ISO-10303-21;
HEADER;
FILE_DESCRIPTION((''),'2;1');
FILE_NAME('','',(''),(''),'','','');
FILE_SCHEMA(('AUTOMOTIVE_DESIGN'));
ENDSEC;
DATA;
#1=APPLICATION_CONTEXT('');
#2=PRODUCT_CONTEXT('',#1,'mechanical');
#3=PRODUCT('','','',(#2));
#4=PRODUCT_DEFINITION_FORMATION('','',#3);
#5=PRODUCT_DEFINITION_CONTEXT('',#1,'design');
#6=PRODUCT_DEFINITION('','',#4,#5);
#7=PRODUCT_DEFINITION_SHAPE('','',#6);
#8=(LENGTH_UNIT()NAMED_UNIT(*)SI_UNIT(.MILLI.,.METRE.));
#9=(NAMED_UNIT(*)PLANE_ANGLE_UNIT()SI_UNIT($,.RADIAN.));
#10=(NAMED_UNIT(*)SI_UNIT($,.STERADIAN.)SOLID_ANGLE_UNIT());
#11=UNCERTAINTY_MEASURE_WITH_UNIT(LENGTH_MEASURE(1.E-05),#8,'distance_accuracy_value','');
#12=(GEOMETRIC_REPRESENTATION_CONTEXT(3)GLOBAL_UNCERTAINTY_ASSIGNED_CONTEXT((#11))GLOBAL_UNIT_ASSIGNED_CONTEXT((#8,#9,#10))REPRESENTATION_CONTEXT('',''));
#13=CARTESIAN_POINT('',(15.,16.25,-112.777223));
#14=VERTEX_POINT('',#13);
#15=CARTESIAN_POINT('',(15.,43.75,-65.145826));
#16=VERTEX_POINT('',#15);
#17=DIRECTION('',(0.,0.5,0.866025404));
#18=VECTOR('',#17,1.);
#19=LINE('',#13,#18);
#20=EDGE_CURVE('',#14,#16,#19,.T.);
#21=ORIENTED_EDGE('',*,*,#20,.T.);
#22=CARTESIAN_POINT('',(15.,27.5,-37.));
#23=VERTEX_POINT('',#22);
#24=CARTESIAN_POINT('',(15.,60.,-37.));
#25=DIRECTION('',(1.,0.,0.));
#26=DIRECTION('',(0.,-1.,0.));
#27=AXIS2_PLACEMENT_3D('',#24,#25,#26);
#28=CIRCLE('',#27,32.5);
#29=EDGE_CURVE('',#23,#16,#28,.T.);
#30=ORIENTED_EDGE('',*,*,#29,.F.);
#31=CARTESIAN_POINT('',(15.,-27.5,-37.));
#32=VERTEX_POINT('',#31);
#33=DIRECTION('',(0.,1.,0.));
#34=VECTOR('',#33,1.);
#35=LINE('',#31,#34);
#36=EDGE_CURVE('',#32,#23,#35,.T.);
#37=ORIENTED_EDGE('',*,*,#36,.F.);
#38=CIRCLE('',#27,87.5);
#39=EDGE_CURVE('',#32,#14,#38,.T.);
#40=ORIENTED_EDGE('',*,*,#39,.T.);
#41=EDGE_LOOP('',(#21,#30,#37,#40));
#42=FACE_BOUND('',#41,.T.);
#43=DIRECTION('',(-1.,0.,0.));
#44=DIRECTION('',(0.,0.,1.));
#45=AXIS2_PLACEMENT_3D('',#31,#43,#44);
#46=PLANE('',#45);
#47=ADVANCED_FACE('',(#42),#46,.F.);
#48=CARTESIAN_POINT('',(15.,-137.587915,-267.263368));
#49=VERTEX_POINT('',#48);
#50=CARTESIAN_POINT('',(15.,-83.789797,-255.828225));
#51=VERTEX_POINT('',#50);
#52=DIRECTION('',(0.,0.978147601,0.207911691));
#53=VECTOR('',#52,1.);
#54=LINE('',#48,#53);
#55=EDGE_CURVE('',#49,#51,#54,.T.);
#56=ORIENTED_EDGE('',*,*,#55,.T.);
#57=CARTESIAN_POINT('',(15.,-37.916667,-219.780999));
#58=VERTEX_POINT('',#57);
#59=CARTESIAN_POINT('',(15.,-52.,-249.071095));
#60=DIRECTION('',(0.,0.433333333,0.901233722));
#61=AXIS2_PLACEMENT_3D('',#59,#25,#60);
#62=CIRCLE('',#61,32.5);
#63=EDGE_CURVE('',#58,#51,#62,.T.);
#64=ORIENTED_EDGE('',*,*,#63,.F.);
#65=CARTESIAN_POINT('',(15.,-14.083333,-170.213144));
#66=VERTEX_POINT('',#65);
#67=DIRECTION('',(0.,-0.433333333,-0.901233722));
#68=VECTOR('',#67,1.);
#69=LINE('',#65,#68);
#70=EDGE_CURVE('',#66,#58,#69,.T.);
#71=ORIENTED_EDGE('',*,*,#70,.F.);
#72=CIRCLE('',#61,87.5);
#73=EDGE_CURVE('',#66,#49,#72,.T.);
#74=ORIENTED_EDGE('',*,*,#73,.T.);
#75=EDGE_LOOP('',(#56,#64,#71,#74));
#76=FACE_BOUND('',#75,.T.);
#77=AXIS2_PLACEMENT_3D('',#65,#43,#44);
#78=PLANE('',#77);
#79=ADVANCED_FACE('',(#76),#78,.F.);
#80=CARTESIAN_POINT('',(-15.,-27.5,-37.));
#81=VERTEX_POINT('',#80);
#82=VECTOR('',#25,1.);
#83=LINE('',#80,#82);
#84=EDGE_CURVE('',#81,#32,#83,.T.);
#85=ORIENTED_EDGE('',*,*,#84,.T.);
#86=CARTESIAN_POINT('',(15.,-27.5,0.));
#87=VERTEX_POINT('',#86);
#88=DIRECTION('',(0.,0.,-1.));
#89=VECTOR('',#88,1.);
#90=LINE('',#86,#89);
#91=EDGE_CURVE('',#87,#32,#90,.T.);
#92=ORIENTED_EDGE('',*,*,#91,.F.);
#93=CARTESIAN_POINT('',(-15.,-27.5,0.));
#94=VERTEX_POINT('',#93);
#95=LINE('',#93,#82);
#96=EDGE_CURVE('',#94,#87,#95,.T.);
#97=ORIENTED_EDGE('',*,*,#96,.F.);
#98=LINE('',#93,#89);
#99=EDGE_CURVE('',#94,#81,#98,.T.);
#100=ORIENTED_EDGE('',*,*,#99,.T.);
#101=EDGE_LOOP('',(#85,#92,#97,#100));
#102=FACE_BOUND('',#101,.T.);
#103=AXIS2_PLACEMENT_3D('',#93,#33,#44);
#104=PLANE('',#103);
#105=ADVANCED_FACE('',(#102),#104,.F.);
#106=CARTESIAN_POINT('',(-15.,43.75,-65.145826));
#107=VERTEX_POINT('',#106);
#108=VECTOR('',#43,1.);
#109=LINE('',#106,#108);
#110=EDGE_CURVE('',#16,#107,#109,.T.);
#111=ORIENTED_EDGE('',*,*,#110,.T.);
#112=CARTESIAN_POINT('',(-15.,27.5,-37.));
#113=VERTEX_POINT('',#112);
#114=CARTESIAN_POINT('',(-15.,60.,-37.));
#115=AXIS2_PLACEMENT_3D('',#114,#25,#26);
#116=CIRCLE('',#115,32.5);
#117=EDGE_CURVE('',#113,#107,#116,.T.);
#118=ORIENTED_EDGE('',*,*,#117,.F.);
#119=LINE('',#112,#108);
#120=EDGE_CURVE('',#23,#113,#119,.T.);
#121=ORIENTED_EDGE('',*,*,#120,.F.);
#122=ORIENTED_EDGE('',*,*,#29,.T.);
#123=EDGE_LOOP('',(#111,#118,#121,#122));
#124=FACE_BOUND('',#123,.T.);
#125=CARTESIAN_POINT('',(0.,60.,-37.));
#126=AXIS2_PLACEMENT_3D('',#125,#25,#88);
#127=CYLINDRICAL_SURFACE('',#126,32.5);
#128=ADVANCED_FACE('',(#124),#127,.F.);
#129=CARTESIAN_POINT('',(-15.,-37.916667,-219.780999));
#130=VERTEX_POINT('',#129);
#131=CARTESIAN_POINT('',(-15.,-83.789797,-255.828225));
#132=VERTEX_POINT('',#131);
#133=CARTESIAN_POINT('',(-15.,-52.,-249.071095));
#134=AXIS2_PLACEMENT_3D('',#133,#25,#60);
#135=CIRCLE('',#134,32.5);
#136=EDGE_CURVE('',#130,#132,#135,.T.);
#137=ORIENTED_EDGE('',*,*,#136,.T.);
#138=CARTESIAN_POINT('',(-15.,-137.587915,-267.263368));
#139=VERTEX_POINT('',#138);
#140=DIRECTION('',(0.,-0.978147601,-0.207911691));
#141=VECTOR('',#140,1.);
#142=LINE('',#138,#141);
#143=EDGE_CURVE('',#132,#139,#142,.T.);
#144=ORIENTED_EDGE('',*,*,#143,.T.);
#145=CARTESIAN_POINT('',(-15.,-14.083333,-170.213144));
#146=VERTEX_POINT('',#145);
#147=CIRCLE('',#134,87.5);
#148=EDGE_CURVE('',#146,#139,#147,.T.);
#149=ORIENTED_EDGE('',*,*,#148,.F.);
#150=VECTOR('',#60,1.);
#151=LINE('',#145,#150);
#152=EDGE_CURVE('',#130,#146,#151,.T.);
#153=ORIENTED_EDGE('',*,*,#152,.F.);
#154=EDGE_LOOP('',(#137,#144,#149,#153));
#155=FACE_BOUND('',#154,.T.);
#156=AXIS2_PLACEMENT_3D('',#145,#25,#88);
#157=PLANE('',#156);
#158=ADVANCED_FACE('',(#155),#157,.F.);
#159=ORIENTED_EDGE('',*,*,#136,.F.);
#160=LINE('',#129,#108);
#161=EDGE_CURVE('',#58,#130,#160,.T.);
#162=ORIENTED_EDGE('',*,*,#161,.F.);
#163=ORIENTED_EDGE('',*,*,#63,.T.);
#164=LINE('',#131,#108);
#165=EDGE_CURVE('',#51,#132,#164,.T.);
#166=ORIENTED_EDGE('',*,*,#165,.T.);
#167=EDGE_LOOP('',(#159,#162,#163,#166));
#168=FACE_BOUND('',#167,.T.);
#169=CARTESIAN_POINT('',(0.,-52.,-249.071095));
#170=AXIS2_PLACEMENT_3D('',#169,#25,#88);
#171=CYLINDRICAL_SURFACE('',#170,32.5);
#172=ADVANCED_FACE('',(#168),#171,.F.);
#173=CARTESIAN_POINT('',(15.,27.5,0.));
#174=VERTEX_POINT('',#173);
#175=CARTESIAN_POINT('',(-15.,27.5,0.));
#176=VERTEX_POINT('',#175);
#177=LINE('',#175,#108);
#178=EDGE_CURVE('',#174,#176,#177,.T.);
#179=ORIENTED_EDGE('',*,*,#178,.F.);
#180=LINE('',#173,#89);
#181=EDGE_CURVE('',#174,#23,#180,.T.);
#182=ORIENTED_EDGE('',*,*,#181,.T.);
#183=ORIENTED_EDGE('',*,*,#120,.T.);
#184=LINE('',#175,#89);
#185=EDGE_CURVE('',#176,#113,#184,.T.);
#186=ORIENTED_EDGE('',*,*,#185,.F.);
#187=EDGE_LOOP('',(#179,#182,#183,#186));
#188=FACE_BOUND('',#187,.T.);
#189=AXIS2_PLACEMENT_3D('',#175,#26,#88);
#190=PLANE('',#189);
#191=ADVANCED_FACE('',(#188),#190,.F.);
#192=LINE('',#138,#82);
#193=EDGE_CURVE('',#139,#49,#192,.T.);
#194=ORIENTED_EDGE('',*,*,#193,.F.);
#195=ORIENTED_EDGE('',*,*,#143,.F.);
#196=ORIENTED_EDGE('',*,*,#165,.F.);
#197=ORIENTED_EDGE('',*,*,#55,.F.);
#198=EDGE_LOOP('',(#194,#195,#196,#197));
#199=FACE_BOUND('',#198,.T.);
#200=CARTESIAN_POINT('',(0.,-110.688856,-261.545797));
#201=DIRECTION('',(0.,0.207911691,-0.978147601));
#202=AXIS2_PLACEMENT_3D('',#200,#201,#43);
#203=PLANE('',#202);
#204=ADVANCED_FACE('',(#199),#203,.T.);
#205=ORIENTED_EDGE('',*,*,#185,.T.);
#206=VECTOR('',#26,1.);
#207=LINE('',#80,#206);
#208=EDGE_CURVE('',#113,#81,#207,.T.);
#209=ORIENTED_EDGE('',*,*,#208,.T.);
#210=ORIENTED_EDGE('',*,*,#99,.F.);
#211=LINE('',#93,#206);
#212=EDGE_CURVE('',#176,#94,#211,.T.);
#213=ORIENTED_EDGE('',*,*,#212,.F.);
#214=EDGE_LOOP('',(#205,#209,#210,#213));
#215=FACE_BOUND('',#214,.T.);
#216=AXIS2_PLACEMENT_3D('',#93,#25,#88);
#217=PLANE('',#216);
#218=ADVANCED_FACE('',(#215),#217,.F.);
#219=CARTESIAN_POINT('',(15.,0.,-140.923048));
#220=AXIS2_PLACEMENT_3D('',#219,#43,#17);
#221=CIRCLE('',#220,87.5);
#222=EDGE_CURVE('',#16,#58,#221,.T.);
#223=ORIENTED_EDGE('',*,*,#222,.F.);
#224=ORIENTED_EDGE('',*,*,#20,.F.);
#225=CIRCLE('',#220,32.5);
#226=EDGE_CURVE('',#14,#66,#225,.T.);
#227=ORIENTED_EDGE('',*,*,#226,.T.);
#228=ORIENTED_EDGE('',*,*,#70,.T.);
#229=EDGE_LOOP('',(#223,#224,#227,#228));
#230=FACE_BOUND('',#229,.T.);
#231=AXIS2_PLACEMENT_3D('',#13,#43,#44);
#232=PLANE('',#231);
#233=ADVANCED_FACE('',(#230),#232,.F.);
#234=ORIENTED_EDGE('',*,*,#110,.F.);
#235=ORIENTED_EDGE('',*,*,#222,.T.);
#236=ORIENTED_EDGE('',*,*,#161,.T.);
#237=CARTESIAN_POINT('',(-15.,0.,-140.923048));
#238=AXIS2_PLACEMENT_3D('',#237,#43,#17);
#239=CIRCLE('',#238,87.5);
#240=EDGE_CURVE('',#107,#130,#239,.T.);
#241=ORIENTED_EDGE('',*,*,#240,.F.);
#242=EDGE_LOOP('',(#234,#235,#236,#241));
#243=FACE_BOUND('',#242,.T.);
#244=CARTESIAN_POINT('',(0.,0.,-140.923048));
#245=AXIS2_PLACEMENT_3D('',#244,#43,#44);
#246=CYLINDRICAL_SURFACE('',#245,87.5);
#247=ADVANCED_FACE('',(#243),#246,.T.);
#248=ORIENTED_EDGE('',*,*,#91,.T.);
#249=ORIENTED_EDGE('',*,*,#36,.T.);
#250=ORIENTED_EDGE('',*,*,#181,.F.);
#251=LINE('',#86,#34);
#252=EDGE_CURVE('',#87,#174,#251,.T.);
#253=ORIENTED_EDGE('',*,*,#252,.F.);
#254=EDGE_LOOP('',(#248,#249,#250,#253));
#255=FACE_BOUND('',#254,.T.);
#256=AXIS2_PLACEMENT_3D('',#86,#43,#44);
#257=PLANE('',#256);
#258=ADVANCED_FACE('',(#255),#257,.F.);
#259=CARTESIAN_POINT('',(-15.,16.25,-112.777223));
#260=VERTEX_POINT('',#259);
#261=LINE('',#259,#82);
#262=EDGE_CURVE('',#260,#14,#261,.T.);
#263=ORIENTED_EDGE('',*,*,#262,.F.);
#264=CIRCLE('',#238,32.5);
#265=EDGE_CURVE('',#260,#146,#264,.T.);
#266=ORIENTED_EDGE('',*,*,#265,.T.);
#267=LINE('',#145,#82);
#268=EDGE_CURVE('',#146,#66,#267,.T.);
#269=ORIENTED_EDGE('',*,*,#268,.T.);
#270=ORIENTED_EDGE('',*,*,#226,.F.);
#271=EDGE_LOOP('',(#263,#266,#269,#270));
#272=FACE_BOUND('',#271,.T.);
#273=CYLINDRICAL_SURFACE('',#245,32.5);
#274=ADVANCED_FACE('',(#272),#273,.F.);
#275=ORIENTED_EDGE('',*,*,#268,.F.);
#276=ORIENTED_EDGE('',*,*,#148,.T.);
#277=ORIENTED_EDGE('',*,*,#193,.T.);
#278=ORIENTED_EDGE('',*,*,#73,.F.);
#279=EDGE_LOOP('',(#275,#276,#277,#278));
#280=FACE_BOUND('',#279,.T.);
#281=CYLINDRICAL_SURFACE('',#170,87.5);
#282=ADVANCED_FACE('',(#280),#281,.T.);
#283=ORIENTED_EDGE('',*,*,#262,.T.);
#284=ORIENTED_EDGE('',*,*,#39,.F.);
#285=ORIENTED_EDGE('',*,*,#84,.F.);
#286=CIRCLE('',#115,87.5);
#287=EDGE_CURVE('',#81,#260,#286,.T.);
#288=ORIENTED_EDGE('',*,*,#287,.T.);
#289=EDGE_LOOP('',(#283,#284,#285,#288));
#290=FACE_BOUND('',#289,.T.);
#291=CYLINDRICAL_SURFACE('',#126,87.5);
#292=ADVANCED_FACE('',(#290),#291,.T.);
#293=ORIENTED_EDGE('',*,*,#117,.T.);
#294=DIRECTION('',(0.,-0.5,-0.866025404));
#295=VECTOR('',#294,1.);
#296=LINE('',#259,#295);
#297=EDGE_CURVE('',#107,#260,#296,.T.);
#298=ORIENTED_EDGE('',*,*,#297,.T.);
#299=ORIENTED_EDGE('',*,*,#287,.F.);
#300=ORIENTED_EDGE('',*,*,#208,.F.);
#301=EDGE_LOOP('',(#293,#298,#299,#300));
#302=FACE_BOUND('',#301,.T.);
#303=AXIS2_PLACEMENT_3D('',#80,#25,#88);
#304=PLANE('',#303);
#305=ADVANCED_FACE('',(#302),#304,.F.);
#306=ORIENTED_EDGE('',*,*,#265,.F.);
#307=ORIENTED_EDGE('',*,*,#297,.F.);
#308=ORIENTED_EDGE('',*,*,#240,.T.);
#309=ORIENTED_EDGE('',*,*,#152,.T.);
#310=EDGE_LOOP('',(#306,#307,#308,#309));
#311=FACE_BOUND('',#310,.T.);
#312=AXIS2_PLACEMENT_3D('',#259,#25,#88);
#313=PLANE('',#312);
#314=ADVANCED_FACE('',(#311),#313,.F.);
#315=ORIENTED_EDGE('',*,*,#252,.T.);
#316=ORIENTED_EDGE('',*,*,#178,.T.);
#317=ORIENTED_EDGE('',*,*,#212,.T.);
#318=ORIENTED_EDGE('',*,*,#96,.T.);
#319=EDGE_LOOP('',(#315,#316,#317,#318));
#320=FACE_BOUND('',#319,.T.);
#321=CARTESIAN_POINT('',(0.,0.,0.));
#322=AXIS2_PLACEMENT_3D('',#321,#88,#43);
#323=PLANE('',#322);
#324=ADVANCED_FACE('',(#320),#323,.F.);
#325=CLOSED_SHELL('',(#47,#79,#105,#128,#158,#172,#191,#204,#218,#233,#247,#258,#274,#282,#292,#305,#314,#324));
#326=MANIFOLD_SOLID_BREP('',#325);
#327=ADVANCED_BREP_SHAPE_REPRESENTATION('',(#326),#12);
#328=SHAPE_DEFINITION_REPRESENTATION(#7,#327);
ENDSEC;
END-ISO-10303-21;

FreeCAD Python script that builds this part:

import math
import FreeCAD as App
import Part
import Sketcher
from FreeCAD import Vector
Q = App.Units.Quantity

doc = App.newDocument("Part")
body = doc.addObject("PartDesign::Body", "Body")

# Sketch on XY plane
sketch1 = body.newObject("Sketcher::SketchObject", "Sketch")
sketch1.AttachmentSupport = (doc.getObject("XY_Plane"), [""])
sketch1.MapMode = "FlatFace"
sketch1.addGeometry(Part.LineSegment(Vector(-15, 28, 0), Vector(-15, -28, 0)), False)
sketch1.addGeometry(Part.LineSegment(Vector(-15, -28, 0), Vector(15, -28, 0)), False)
sketch1.addGeometry(Part.LineSegment(Vector(15, -28, 0), Vector(15, 28, 0)), False)
sketch1.addGeometry(Part.LineSegment(Vector(15, 28, 0), Vector(-15, 28, 0)), False)
sketch1.addConstraint(Sketcher.Constraint("Coincident", 0, 2, 1, 1))
sketch1.addConstraint(Sketcher.Constraint("Coincident", 1, 2, 2, 1))
sketch1.addConstraint(Sketcher.Constraint("Coincident", 2, 2, 3, 1))
sketch1.addConstraint(Sketcher.Constraint("Coincident", 3, 2, 0, 1))
sketch1.addConstraint(Sketcher.Constraint("Vertical", 0))
sketch1.addConstraint(Sketcher.Constraint("Horizontal", 1))
sketch1.addConstraint(Sketcher.Constraint("Vertical", 2))
sketch1.addConstraint(Sketcher.Constraint("Horizontal", 3))
sketch1.addConstraint(Sketcher.Constraint("Symmetric", 0, 2, 2, 2, -1, 1))
sketch1.addConstraint(Sketcher.Constraint("DistanceX", 1, 1, 1, 2, Q("30 mm")))
sketch1.addConstraint(Sketcher.Constraint("DistanceY", 0, 2, 0, 1, Q("55 mm")))

# Sketch on YZ plane
sketch2 = body.newObject("Sketcher::SketchObject", "Sketch001")
sketch2.AttachmentSupport = (doc.getObject("YZ_Plane"), [""])
sketch2.MapMode = "FlatFace"
sketch2.addGeometry(Part.LineSegment(Vector(0, 0, 0), Vector(0, -37, 0)), False)
sketch2.addGeometry(Part.ArcOfCircle(Part.Circle(Vector(60, -37, 0), Vector(0, 0, 1), 60), math.radians(180), math.radians(240)), False)
sketch2.addGeometry(Part.ArcOfCircle(Part.Circle(Vector(0, -141, 0), Vector(0, 0, 1), 60), math.radians(-116), math.radians(60)), False)
sketch2.addGeometry(Part.ArcOfCircle(Part.Circle(Vector(-52, -249, 0), Vector(0, 0, 1), 60), math.radians(64), math.radians(192)), False)
sketch2.addConstraint(Sketcher.Constraint("Tangent", 0, 2, 1, 1))
sketch2.addConstraint(Sketcher.Constraint("Tangent", 1, 2, 2, 2))
sketch2.addConstraint(Sketcher.Constraint("Tangent", 2, 1, 3, 1))
sketch2.addConstraint(Sketcher.Constraint("Vertical", 0))
sketch2.addConstraint(Sketcher.Constraint("Coincident", 0, 1, -1, 1))
sketch2.addConstraint(Sketcher.Constraint("Equal", 1, 2))
sketch2.addConstraint(Sketcher.Constraint("Equal", 2, 3))
sketch2.addConstraint(Sketcher.Constraint("PointOnObject", 2, 3, -2))
sketch2.addConstraint(Sketcher.Constraint("Radius", 1, Q("60 mm")))
sketch2.addConstraint(Sketcher.Constraint("DistanceY", 0, 2, 0, 1, Q("37 mm")))
sketch2.addConstraint(Sketcher.Constraint("DistanceX", 3, 3, -1, 1, Q("52 mm")))
sketch2.addConstraint(Sketcher.Constraint("DistanceY", 3, 2, 3, 3, Q("12.474701 mm")))
doc.recompute()

additivepipe = body.newObject("PartDesign::AdditivePipe", "AdditivePipe")
additivepipe.Profile = sketch1
additivepipe.Spine = (sketch2, ["Edge1", "Edge2", "Edge3", "Edge4"])

doc.recompute()
